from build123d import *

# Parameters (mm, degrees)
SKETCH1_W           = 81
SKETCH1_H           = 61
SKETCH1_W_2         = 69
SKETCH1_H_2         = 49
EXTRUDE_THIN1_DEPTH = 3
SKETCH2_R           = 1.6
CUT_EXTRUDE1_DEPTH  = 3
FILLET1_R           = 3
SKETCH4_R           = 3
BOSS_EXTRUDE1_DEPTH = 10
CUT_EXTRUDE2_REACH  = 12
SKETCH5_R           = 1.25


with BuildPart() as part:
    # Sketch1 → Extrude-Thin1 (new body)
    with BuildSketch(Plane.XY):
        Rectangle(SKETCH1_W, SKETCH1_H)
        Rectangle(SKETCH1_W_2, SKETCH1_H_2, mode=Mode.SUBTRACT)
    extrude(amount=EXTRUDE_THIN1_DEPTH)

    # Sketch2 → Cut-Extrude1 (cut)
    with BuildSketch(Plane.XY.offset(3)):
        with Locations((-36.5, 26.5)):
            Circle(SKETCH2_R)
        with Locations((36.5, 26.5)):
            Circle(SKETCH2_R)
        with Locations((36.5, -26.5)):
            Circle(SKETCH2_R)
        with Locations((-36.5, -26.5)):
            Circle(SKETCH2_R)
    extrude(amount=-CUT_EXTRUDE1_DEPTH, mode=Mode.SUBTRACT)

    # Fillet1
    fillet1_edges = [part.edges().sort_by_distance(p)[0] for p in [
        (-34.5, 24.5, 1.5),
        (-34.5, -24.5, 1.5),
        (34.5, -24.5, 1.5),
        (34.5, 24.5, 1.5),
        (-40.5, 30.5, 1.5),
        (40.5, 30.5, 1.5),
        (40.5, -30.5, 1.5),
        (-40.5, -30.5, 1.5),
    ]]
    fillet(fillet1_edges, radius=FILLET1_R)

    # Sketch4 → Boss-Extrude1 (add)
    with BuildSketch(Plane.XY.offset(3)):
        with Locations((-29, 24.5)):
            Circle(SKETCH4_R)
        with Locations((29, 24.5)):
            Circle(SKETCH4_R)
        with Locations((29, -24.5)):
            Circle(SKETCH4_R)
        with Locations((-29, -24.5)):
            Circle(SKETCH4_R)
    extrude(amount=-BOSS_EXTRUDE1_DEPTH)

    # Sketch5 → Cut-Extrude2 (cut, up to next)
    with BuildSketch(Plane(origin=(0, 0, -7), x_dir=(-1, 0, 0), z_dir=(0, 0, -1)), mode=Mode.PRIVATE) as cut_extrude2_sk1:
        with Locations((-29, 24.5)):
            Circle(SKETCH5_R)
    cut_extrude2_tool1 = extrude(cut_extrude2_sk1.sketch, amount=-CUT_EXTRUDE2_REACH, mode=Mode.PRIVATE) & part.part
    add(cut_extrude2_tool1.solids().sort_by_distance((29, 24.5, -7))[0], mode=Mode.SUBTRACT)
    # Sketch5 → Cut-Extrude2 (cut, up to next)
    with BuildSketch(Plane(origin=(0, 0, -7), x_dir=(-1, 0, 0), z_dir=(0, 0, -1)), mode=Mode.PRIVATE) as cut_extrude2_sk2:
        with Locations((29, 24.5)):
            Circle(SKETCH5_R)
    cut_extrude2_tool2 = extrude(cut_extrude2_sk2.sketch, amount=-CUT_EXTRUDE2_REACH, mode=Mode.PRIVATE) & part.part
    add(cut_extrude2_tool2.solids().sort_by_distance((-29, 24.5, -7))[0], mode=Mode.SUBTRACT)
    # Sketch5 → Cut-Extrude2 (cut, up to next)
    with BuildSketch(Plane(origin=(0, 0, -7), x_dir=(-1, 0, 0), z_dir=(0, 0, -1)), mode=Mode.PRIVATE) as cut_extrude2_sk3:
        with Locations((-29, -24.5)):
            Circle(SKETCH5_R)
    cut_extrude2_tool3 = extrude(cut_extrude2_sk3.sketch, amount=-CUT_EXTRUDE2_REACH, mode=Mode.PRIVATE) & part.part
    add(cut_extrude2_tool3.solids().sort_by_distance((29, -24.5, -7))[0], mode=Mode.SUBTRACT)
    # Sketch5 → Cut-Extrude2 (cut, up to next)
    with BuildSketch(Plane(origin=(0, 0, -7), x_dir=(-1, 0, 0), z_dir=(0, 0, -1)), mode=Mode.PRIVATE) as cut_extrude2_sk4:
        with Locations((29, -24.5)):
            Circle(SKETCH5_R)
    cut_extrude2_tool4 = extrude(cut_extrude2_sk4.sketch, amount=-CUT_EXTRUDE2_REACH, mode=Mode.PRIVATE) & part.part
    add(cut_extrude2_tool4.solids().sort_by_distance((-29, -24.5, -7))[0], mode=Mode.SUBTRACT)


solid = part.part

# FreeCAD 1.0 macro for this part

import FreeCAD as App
import Part
import Sketcher


def edges_at(feature, points):
    """Names of the edges that pass closest to the given points."""
    edges = feature.Shape.Edges
    near = lambda p: min(range(len(edges)), key=lambda i: edges[i].distToShape(Part.Vertex(*p))[0])
    return sorted({f"Edge{near(p) + 1}" for p in points})


def add_polygon(sketch, points):
    """Adds a closed chain of lines whose ends are joined by coincident constraints."""
    first, n = sketch.GeometryCount, len(points)
    for a, b in zip(points, points[1:] + points[:1]):
        sketch.addGeometry(Part.LineSegment(App.Vector(*a, 0), App.Vector(*b, 0)), False)
    for i in range(n):
        sketch.addConstraint(Sketcher.Constraint("Coincident", first + i, 2, first + (i + 1) % n, 1))

doc = App.newDocument("Part")
body = doc.addObject("PartDesign::Body", "Body")

sketch1 = body.newObject("Sketcher::SketchObject", "Sketch")
sketch1.AttachmentSupport = (doc.getObject("XY_Plane"), [""])
sketch1.MapMode = "FlatFace"
add_polygon(sketch1, [(-40, 30), (-40, -30), (40, -30), (40, 30)])
add_polygon(sketch1, [(34, -24), (-34, -24), (-34, 24), (34, 24)])
sketch1.addConstraint([
    Sketcher.Constraint("Vertical", 0),
    Sketcher.Constraint("Horizontal", 1),
    Sketcher.Constraint("Vertical", 2),
    Sketcher.Constraint("Horizontal", 3),
    Sketcher.Constraint("Horizontal", 4),
    Sketcher.Constraint("Vertical", 5),
    Sketcher.Constraint("Horizontal", 6),
    Sketcher.Constraint("Vertical", 7),
    Sketcher.Constraint("Symmetric", 0, 2, 2, 2, -1, 1),
    Sketcher.Constraint("Symmetric", 4, 2, 6, 2, -1, 1),
    Sketcher.Constraint("DistanceX", 1, 1, 1, 2, 81.0),
    Sketcher.Constraint("DistanceX", 4, 2, 4, 1, 69.0),
    Sketcher.Constraint("DistanceY", 0, 2, 0, 1, 61.0),
    Sketcher.Constraint("DistanceY", 5, 1, 5, 2, 49.0),
])
pad1 = body.newObject("PartDesign::Pad", "Pad")
pad1.Profile = sketch1
pad1.Length = 3

sketch2 = body.newObject("Sketcher::SketchObject", "Sketch001")
sketch2.AttachmentSupport = (doc.getObject("XY_Plane"), [""])
sketch2.MapMode = "FlatFace"
sketch2.AttachmentOffset = App.Placement(App.Vector(0, 0, 3), App.Rotation())
sketch2.addGeometry([
    Part.Circle(App.Vector(-36.5, 26.5, 0), App.Vector(0, 0, 1), 1.6),
    Part.Circle(App.Vector(36.5, 26.5, 0), App.Vector(0, 0, 1), 1.6),
    Part.Circle(App.Vector(36.5, -26.5, 0), App.Vector(0, 0, 1), 1.6),
    Part.Circle(App.Vector(-36.5, -26.5, 0), App.Vector(0, 0, 1), 1.6),
], False)
sketch2.addConstraint([
    Sketcher.Constraint("Equal", 0, 1),
    Sketcher.Constraint("Equal", 1, 2),
    Sketcher.Constraint("Equal", 2, 3),
    Sketcher.Constraint("Symmetric", 0, 3, 2, 3, -1, 1),
    Sketcher.Constraint("Symmetric", 1, 3, 3, 3, -1, 1),
    Sketcher.Constraint("Symmetric", 0, 3, 1, 3, -2),
    Sketcher.Constraint("Diameter", 0, 3.2),
    Sketcher.Constraint("DistanceX", 0, 3, 1, 3, 73.0),
    Sketcher.Constraint("DistanceY", 2, 3, 1, 3, 53.0),
])
pocket1 = body.newObject("PartDesign::Pocket", "Pocket")
pocket1.Profile = sketch2
pocket1.Length = 3
doc.recompute()

fillet = body.newObject("PartDesign::Fillet", "Fillet")
fillet.Base = (pocket1, edges_at(pocket1, [
    (-34.5, 24.5, 1.5),
    (-34.5, -24.5, 1.5),
    (34.5, -24.5, 1.5),
    (34.5, 24.5, 1.5),
    (-40.5, 30.5, 1.5),
    (40.5, 30.5, 1.5),
    (40.5, -30.5, 1.5),
    (-40.5, -30.5, 1.5),
]))
fillet.Radius = 3

sketch3 = body.newObject("Sketcher::SketchObject", "Sketch002")
sketch3.AttachmentSupport = (doc.getObject("XY_Plane"), [""])
sketch3.MapMode = "FlatFace"
sketch3.AttachmentOffset = App.Placement(App.Vector(0, 0, 3), App.Rotation())
sketch3.addGeometry([
    Part.Circle(App.Vector(-29, 24.5, 0), App.Vector(0, 0, 1), 3),
    Part.Circle(App.Vector(29, 24.5, 0), App.Vector(0, 0, 1), 3),
    Part.Circle(App.Vector(29, -24.5, 0), App.Vector(0, 0, 1), 3),
    Part.Circle(App.Vector(-29, -24.5, 0), App.Vector(0, 0, 1), 3),
], False)
sketch3.addConstraint([
    Sketcher.Constraint("Equal", 0, 1),
    Sketcher.Constraint("Equal", 1, 2),
    Sketcher.Constraint("Equal", 2, 3),
    Sketcher.Constraint("Symmetric", 0, 3, 2, 3, -1, 1),
    Sketcher.Constraint("Symmetric", 1, 3, 3, 3, -1, 1),
    Sketcher.Constraint("Symmetric", 0, 3, 1, 3, -2),
    Sketcher.Constraint("Diameter", 0, 6.0),
    Sketcher.Constraint("DistanceX", 0, 3, -1, 1, 29.0),
    Sketcher.Constraint("DistanceY", 2, 3, 1, 3, 49.0),
])
pad2 = body.newObject("PartDesign::Pad", "Pad001")
pad2.Profile = sketch3
pad2.Length = 10
pad2.Reversed = True

sketch4 = body.newObject("Sketcher::SketchObject", "Sketch003")
sketch4.AttachmentSupport = (doc.getObject("XY_Plane"), [""])
sketch4.MapMode = "FlatFace"
sketch4.AttachmentOffset = App.Placement(App.Vector(0, 0, -7), App.Rotation())
sketch4.addGeometry(Part.Circle(App.Vector(29, 24.5, 0), App.Vector(0, 0, 1), 1.2), False)
sketch4.addConstraint([
    Sketcher.Constraint("Diameter", 0, 2.5),
    Sketcher.Constraint("DistanceX", -1, 1, 0, 3, 29.0),
    Sketcher.Constraint("DistanceY", -1, 1, 0, 3, 24.5),
])
pocket2 = body.newObject("PartDesign::Pocket", "Pocket001")
pocket2.Profile = sketch4
pocket2.Type = "UpToFirst"
pocket2.Reversed = True

sketch5 = body.newObject("Sketcher::SketchObject", "Sketch004")
sketch5.AttachmentSupport = (doc.getObject("XY_Plane"), [""])
sketch5.MapMode = "FlatFace"
sketch5.AttachmentOffset = App.Placement(App.Vector(0, 0, -7), App.Rotation())
sketch5.addGeometry(Part.Circle(App.Vector(-29, 24.5, 0), App.Vector(0, 0, 1), 1.2), False)
sketch5.addConstraint([
    Sketcher.Constraint("Diameter", 0, 2.5),
    Sketcher.Constraint("DistanceX", 0, 3, -1, 1, 29.0),
    Sketcher.Constraint("DistanceY", -1, 1, 0, 3, 24.5),
])
pocket3 = body.newObject("PartDesign::Pocket", "Pocket002")
pocket3.Profile = sketch5
pocket3.Type = "UpToFirst"
pocket3.Reversed = True

sketch6 = body.newObject("Sketcher::SketchObject", "Sketch005")
sketch6.AttachmentSupport = (doc.getObject("XY_Plane"), [""])
sketch6.MapMode = "FlatFace"
sketch6.AttachmentOffset = App.Placement(App.Vector(0, 0, -7), App.Rotation())
sketch6.addGeometry(Part.Circle(App.Vector(29, -24.5, 0), App.Vector(0, 0, 1), 1.2), False)
sketch6.addConstraint([
    Sketcher.Constraint("Diameter", 0, 2.5),
    Sketcher.Constraint("DistanceX", -1, 1, 0, 3, 29.0),
    Sketcher.Constraint("DistanceY", 0, 3, -1, 1, 24.5),
])
pocket4 = body.newObject("PartDesign::Pocket", "Pocket003")
pocket4.Profile = sketch6
pocket4.Type = "UpToFirst"
pocket4.Reversed = True

sketch7 = body.newObject("Sketcher::SketchObject", "Sketch006")
sketch7.AttachmentSupport = (doc.getObject("XY_Plane"), [""])
sketch7.MapMode = "FlatFace"
sketch7.AttachmentOffset = App.Placement(App.Vector(0, 0, -7), App.Rotation())
sketch7.addGeometry(Part.Circle(App.Vector(-29, -24.5, 0), App.Vector(0, 0, 1), 1.2), False)
sketch7.addConstraint([
    Sketcher.Constraint("Diameter", 0, 2.5),
    Sketcher.Constraint("DistanceX", 0, 3, -1, 1, 29.0),
    Sketcher.Constraint("DistanceY", 0, 3, -1, 1, 24.5),
])
pocket5 = body.newObject("PartDesign::Pocket", "Pocket004")
pocket5.Profile = sketch7
pocket5.Type = "UpToFirst"
pocket5.Reversed = True

doc.recompute()
